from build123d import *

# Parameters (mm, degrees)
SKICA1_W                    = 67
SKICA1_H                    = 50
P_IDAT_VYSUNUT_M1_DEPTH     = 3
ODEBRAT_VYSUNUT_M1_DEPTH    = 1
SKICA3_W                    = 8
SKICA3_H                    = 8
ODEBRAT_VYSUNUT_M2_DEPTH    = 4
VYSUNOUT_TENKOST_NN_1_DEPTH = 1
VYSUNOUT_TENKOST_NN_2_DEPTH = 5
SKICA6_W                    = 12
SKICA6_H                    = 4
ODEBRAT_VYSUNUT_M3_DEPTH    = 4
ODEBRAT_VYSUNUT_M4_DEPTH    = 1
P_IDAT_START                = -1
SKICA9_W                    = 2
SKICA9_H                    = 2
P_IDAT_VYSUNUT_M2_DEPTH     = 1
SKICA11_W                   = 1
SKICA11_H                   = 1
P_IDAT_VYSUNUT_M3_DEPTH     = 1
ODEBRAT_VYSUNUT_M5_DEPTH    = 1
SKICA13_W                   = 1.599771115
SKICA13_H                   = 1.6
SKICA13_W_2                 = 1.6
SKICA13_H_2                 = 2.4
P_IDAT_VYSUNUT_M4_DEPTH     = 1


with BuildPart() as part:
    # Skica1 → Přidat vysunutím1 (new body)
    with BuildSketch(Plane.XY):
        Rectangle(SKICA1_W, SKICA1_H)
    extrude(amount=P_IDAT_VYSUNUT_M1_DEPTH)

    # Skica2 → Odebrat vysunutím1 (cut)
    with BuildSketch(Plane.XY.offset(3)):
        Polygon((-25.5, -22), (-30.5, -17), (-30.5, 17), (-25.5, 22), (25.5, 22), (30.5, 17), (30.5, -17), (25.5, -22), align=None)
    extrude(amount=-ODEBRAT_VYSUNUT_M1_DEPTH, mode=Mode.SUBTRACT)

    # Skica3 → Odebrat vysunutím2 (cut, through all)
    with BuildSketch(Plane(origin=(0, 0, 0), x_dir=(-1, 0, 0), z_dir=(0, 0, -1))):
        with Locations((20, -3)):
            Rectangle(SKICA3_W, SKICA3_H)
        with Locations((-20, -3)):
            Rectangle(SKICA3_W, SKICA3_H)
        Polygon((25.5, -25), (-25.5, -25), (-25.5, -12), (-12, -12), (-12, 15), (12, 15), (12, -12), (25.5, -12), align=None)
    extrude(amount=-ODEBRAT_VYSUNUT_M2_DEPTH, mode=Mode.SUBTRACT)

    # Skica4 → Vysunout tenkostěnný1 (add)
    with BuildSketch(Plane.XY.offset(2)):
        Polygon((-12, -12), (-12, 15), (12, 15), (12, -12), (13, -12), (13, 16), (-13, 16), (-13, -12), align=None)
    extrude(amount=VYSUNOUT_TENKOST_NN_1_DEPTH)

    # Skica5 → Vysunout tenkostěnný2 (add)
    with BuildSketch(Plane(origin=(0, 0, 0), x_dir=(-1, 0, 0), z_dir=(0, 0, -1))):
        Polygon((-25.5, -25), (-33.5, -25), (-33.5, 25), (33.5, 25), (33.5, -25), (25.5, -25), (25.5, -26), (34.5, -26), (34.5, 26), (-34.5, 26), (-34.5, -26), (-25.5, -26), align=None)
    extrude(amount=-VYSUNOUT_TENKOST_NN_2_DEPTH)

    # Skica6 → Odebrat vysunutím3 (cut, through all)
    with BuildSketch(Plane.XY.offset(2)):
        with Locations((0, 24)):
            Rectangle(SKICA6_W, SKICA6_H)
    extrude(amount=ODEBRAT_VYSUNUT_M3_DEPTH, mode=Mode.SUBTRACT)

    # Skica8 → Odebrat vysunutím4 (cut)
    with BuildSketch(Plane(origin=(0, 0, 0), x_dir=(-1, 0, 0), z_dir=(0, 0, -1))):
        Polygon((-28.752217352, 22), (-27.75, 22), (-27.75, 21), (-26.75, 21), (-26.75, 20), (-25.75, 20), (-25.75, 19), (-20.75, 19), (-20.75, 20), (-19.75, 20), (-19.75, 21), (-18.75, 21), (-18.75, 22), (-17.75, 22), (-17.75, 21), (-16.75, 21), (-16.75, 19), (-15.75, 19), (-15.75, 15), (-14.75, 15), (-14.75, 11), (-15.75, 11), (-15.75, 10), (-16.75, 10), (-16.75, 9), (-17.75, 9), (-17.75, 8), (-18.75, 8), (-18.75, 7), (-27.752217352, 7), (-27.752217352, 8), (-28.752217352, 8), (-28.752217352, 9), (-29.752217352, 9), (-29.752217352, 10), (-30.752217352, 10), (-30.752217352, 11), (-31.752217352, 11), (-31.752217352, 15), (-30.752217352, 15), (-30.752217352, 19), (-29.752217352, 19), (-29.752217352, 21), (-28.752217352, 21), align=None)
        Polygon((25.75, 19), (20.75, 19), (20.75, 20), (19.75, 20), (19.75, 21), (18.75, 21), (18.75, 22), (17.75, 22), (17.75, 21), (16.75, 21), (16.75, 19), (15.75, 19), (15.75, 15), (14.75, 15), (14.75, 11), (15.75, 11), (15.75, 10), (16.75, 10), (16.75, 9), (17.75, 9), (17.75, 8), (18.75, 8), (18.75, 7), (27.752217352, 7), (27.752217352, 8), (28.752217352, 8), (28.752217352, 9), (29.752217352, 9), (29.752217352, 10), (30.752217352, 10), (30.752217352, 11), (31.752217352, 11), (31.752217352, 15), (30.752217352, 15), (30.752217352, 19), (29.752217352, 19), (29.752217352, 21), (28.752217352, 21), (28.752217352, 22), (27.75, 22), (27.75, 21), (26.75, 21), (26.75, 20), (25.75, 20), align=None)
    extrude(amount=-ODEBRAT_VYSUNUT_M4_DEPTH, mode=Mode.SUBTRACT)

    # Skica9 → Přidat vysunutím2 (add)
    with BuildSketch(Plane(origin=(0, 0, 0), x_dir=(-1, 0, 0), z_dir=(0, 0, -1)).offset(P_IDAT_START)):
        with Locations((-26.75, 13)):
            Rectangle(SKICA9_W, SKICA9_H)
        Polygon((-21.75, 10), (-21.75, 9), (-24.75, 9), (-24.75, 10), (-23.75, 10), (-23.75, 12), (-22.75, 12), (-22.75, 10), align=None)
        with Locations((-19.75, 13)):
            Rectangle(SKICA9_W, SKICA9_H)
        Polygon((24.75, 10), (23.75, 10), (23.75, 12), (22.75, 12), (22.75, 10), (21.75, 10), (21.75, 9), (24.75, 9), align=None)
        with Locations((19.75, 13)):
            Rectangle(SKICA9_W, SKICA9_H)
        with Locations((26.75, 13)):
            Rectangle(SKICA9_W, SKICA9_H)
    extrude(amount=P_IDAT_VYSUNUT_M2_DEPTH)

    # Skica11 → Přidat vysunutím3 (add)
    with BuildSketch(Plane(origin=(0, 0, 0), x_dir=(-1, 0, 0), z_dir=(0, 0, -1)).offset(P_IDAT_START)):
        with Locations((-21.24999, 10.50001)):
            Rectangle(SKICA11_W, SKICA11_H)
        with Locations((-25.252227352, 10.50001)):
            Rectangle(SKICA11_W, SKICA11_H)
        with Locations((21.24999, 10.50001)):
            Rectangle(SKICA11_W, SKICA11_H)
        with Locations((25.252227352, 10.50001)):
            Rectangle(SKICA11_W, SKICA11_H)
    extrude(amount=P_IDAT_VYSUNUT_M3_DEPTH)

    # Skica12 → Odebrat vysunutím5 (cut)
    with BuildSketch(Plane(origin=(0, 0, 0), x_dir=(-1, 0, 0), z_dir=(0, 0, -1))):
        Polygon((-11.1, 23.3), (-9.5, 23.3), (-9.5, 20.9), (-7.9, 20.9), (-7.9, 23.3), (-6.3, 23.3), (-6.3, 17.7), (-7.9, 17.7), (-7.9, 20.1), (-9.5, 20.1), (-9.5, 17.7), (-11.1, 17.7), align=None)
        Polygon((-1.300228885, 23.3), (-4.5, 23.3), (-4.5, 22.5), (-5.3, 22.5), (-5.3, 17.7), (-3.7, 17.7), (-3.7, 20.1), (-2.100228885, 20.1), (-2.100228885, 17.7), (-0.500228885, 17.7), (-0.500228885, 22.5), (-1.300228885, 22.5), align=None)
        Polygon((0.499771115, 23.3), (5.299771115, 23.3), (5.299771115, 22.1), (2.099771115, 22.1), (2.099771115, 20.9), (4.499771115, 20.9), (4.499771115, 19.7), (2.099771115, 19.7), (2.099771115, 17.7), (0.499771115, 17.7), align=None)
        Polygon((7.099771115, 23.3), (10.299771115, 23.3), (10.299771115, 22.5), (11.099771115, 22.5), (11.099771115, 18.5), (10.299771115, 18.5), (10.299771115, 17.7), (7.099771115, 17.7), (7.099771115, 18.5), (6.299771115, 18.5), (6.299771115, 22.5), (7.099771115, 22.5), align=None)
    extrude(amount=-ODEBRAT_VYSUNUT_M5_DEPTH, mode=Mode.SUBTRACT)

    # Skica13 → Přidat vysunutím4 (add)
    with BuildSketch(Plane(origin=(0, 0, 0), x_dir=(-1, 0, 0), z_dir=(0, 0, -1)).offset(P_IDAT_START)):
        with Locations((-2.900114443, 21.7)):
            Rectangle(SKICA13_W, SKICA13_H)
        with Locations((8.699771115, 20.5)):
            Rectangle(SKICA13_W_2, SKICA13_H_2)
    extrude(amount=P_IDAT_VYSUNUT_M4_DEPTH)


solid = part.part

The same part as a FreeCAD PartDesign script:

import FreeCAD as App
import Part
import Sketcher
Q = App.Units.Quantity


def add_polygon(sketch, points):
    """Adds a closed chain of lines whose ends are joined by coincident constraints."""
    first, n = sketch.GeometryCount, len(points)
    for a, b in zip(points, points[1:] + points[:1]):
        sketch.addGeometry(Part.LineSegment(App.Vector(*a, 0), App.Vector(*b, 0)), False)
    for i in range(n):
        sketch.addConstraint(Sketcher.Constraint("Coincident", first + i, 2, first + (i + 1) % n, 1))

doc = App.newDocument("Part")
body = doc.addObject("PartDesign::Body", "Body")

# Sketch on XY plane
sketch1 = doc.addObject("Sketcher::SketchObject", "Sketch")
body.addObject(sketch1)
sketch1.AttachmentSupport = (doc.XY_Plane, [""])
sketch1.MapMode = "FlatFace"
add_polygon(sketch1, [(-33.5, 25), (-33.5, -25), (33.5, -25), (33.5, 25)])  # lines 0-3
sketch1.addConstraint(Sketcher.Constraint("Vertical", 0))
sketch1.addConstraint(Sketcher.Constraint("Horizontal", 1))
sketch1.addConstraint(Sketcher.Constraint("Vertical", 2))
sketch1.addConstraint(Sketcher.Constraint("Horizontal", 3))
sketch1.addConstraint(Sketcher.Constraint("Symmetric", 0, 2, 2, 2, -1, 1))
sketch1.addConstraint(Sketcher.Constraint("DistanceX", 1, 1, 1, 2, Q("67 mm")))
sketch1.addConstraint(Sketcher.Constraint("DistanceY", 0, 2, 0, 1, Q("50 mm")))
pad1 = doc.addObject("PartDesign::Pad", "Pad")
body.addObject(pad1)
pad1.Profile = sketch1
pad1.Length = 3

# Sketch on XY plane
sketch2 = doc.addObject("Sketcher::SketchObject", "Sketch001")
body.addObject(sketch2)
sketch2.AttachmentSupport = (doc.XY_Plane, [""])
sketch2.MapMode = "FlatFace"
sketch2.AttachmentOffset = App.Placement(App.Vector(0, 0, 3), App.Rotation())
add_polygon(sketch2, [(-30.5, -17), (-25.5, -22), (25.5, -22), (30.5, -17), (30.5, 17), (25.5, 22), (-25.5, 22), (-30.5, 17)])  # lines 0-7
sketch2.addConstraint(Sketcher.Constraint("Horizontal", 1))
sketch2.addConstraint(Sketcher.Constraint("Vertical", 3))
sketch2.addConstraint(Sketcher.Constraint("Horizontal", 5))
sketch2.addConstraint(Sketcher.Constraint("Vertical", 7))
sketch2.addConstraint(Sketcher.Constraint("Symmetric", 0, 2, 4, 2, -1, 1))
sketch2.addConstraint(Sketcher.Constraint("Symmetric", 2, 2, 6, 2, -1, 1))
sketch2.addConstraint(Sketcher.Constraint("Perpendicular", 0, 2))
sketch2.addConstraint(Sketcher.Constraint("Perpendicular", 2, 4))
sketch2.addConstraint(Sketcher.Constraint("Perpendicular", 4, 6))
sketch2.addConstraint(Sketcher.Constraint("Horizontal", 3, 2, 6, 2))
sketch2.addConstraint(Sketcher.Constraint("Vertical", 1, 2, 4, 2))
sketch2.addConstraint(Sketcher.Constraint("DistanceX", 1, 1, 1, 2, Q("51 mm")))
sketch2.addConstraint(Sketcher.Constraint("DistanceY", 3, 1, 3, 2, Q("34 mm")))
sketch2.addConstraint(Sketcher.Constraint("DistanceY", 0, 2, -1, 1, Q("22 mm")))
pocket1 = doc.addObject("PartDesign::Pocket", "Pocket")
body.addObject(pocket1)
pocket1.Profile = sketch2
pocket1.Length = 1

# Sketch on XY plane
sketch3 = doc.addObject("Sketcher::SketchObject", "Sketch002")
body.addObject(sketch3)
sketch3.AttachmentSupport = (doc.XY_Plane, [""])
sketch3.MapMode = "FlatFace"
add_polygon(sketch3, [(-16, 1), (-16, -7), (-24, -7), (-24, 1)])  # lines 0-3
add_polygon(sketch3, [(24, 1), (24, -7), (16, -7), (16, 1)])  # lines 4-7
add_polygon(sketch3, [(25.5, -25), (-25.5, -25), (-25.5, -12), (-12, -12), (-12, 15), (12, 15), (12, -12), (25.5, -12)])  # lines 8-15
sketch3.addConstraint(Sketcher.Constraint("Vertical", 0))
sketch3.addConstraint(Sketcher.Constraint("Horizontal", 1))
sketch3.addConstraint(Sketcher.Constraint("Vertical", 2))
sketch3.addConstraint(Sketcher.Constraint("Horizontal", 3))
sketch3.addConstraint(Sketcher.Constraint("Vertical", 4))
sketch3.addConstraint(Sketcher.Constraint("Horizontal", 5))
sketch3.addConstraint(Sketcher.Constraint("Vertical", 6))
sketch3.addConstraint(Sketcher.Constraint("Horizontal", 7))
sketch3.addConstraint(Sketcher.Constraint("Horizontal", 8))
sketch3.addConstraint(Sketcher.Constraint("Vertical", 9))
sketch3.addConstraint(Sketcher.Constraint("Horizontal", 10))
sketch3.addConstraint(Sketcher.Constraint("Vertical", 11))
sketch3.addConstraint(Sketcher.Constraint("Horizontal", 12))
sketch3.addConstraint(Sketcher.Constraint("Vertical", 13))
sketch3.addConstraint(Sketcher.Constraint("Horizontal", 14))
sketch3.addConstraint(Sketcher.Constraint("Vertical", 15))
sketch3.addConstraint(Sketcher.Constraint("Symmetric", 1, 2, 4, 2, -2))
sketch3.addConstraint(Sketcher.Constraint("Symmetric", 3, 2, 6, 2, -2))
sketch3.addConstraint(Sketcher.Constraint("Symmetric", 10, 2, 13, 2, -2))
sketch3.addConstraint(Sketcher.Constraint("Equal", 10, 14))
sketch3.addConstraint(Sketcher.Constraint("Equal", 7, 0))
sketch3.addConstraint(Sketcher.Constraint("DistanceX", 1, 2, 1, 1, Q("8 mm")))
sketch3.addConstraint(Sketcher.Constraint("DistanceX", 8, 2, 8, 1, Q("51 mm")))
sketch3.addConstraint(Sketcher.Constraint("DistanceX", 12, 1, 12, 2, Q("24 mm")))
sketch3.addConstraint(Sketcher.Constraint("DistanceY", 9, 1, 9, 2, Q("13 mm")))
sketch3.addConstraint(Sketcher.Constraint("DistanceY", 11, 1, 11, 2, Q("27 mm")))
sketch3.addConstraint(Sketcher.Constraint("DistanceX", 0, 2, -1, 1, Q("16 mm")))
sketch3.addConstraint(Sketcher.Constraint("DistanceY", 0, 2, -1, 1, Q("7 mm")))
sketch3.addConstraint(Sketcher.Constraint("DistanceY", 8, 2, -1, 1, Q("25 mm")))
pocket2 = doc.addObject("PartDesign::Pocket", "Pocket001")
body.addObject(pocket2)
pocket2.Profile = sketch3
pocket2.Type = "ThroughAll"
pocket2.Reversed = True

# Sketch on XY plane
sketch4 = doc.addObject("Sketcher::SketchObject", "Sketch003")
body.addObject(sketch4)
sketch4.AttachmentSupport = (doc.XY_Plane, [""])
sketch4.MapMode = "FlatFace"
sketch4.AttachmentOffset = App.Placement(App.Vector(0, 0, 2), App.Rotation())
add_polygon(sketch4, [(-12, -12), (-12, 15), (12, 15), (12, -12), (13, -12), (13, 16), (-13, 16), (-13, -12)])  # lines 0-7
sketch4.addConstraint(Sketcher.Constraint("Vertical", 0))
sketch4.addConstraint(Sketcher.Constraint("Horizontal", 1))
sketch4.addConstraint(Sketcher.Constraint("Vertical", 2))
sketch4.addConstraint(Sketcher.Constraint("Horizontal", 3))
sketch4.addConstraint(Sketcher.Constraint("Vertical", 4))
sketch4.addConstraint(Sketcher.Constraint("Horizontal", 5))
sketch4.addConstraint(Sketcher.Constraint("Vertical", 6))
sketch4.addConstraint(Sketcher.Constraint("Horizontal", 7))
sketch4.addConstraint(Sketcher.Constraint("Symmetric", 3, 2, 6, 2, -2))
sketch4.addConstraint(Sketcher.Constraint("Equal", 3, 7))
sketch4.addConstraint(Sketcher.Constraint("DistanceX", 1, 1, 1, 2, Q("24 mm")))
sketch4.addConstraint(Sketcher.Constraint("DistanceX", 3, 1, 3, 2, Q("1 mm")))
sketch4.addConstraint(Sketcher.Constraint("DistanceY", 0, 1, 0, 2, Q("27 mm")))
sketch4.addConstraint(Sketcher.Constraint("DistanceY", 4, 1, 4, 2, Q("28 mm")))
sketch4.addConstraint(Sketcher.Constraint("DistanceY", -1, 1, 0, 2, Q("15 mm")))
pad2 = doc.addObject("PartDesign::Pad", "Pad001")
body.addObject(pad2)
pad2.Profile = sketch4
pad2.Length = 1

# Sketch on XY plane
sketch5 = doc.addObject("Sketcher::SketchObject", "Sketch004")
body.addObject(sketch5)
sketch5.AttachmentSupport = (doc.XY_Plane, [""])
sketch5.MapMode = "FlatFace"
add_polygon(sketch5, [(25.5, -25), (33.5, -25), (33.5, 25), (-33.5, 25), (-33.5, -25), (-25.5, -25), (-25.5, -26), (-34.5, -26), (-34.5, 26), (34.5, 26), (34.5, -26), (25.5, -26)])  # lines 0-11
sketch5.addConstraint(Sketcher.Constraint("Horizontal", 0))
sketch5.addConstraint(Sketcher.Constraint("Vertical", 1))
sketch5.addConstraint(Sketcher.Constraint("Horizontal", 2))
sketch5.addConstraint(Sketcher.Constraint("Vertical", 3))
sketch5.addConstraint(Sketcher.Constraint("Horizontal", 4))
sketch5.addConstraint(Sketcher.Constraint("Vertical", 5))
sketch5.addConstraint(Sketcher.Constraint("Horizontal", 6))
sketch5.addConstraint(Sketcher.Constraint("Vertical", 7))
sketch5.addConstraint(Sketcher.Constraint("Horizontal", 8))
sketch5.addConstraint(Sketcher.Constraint("Vertical", 9))
sketch5.addConstraint(Sketcher.Constraint("Horizontal", 10))
sketch5.addConstraint(Sketcher.Constraint("Vertical", 11))
sketch5.addConstraint(Sketcher.Constraint("Symmetric", 0, 2, 2, 2, -1, 1))
sketch5.addConstraint(Sketcher.Constraint("Symmetric", 6, 2, 8, 2, -1, 1))
sketch5.addConstraint(Sketcher.Constraint("Symmetric", 5, 2, 10, 2, -2))
sketch5.addConstraint(Sketcher.Constraint("Horizontal", 0, 2, 3, 2))
sketch5.addConstraint(Sketcher.Constraint("DistanceX", 0, 1, 0, 2, Q("8 mm")))
sketch5.addConstraint(Sketcher.Constraint("DistanceX", 2, 2, 2, 1, Q("67 mm")))
sketch5.addConstraint(Sketcher.Constraint("DistanceX", 6, 2, 6, 1, Q("9 mm")))
sketch5.addConstraint(Sketcher.Constraint("DistanceY", 1, 1, 1, 2, Q("50 mm")))
sketch5.addConstraint(Sketcher.Constraint("DistanceY", 5, 2, 5, 1, Q("1 mm")))
pad3 = doc.addObject("PartDesign::Pad", "Pad002")
body.addObject(pad3)
pad3.Profile = sketch5
pad3.Length = 5

# Sketch on XY plane
sketch6 = doc.addObject("Sketcher::SketchObject", "Sketch005")
body.addObject(sketch6)
sketch6.AttachmentSupport = (doc.XY_Plane, [""])
sketch6.MapMode = "FlatFace"
sketch6.AttachmentOffset = App.Placement(App.Vector(0, 0, 2), App.Rotation())
add_polygon(sketch6, [(-6, 26), (-6, 22), (6, 22), (6, 26)])  # lines 0-3
sketch6.addConstraint(Sketcher.Constraint("Vertical", 0))
sketch6.addConstraint(Sketcher.Constraint("Horizontal", 1))
sketch6.addConstraint(Sketcher.Constraint("Vertical", 2))
sketch6.addConstraint(Sketcher.Constraint("Horizontal", 3))
sketch6.addConstraint(Sketcher.Constraint("DistanceX", 1, 1, 1, 2, Q("12 mm")))
sketch6.addConstraint(Sketcher.Constraint("DistanceY", 0, 2, 0, 1, Q("4 mm")))
sketch6.addConstraint(Sketcher.Constraint("DistanceX", 0, 2, -1, 1, Q("6 mm")))
sketch6.addConstraint(Sketcher.Constraint("DistanceY", -1, 1, 0, 2, Q("22 mm")))
pocket3 = doc.addObject("PartDesign::Pocket", "Pocket002")
body.addObject(pocket3)
pocket3.Profile = sketch6
pocket3.Type = "ThroughAll"
pocket3.Reversed = True

# Sketch on XY plane
sketch7 = doc.addObject("Sketcher::SketchObject", "Sketch006")
body.addObject(sketch7)
sketch7.AttachmentSupport = (doc.XY_Plane, [""])
sketch7.MapMode = "FlatFace"
add_polygon(sketch7, [(27.75, 22), (28.752217, 22), (28.752217, 21), (29.752217, 21), (29.752217, 19), (30.752217, 19), (30.752217, 15), (31.752217, 15), (31.752217, 11), (30.752217, 11), (30.752217, 10), (29.752217, 10), (29.752217, 9), (28.752217, 9), (28.752217, 8), (27.752217, 8), (27.752217, 7), (18.75, 7), (18.75, 8), (17.75, 8), (17.75, 9), (16.75, 9), (16.75, 10), (15.75, 10), (15.75, 11), (14.75, 11), (14.75, 15), (15.75, 15), (15.75, 19), (16.75, 19), (16.75, 21), (17.75, 21), (17.75, 22), (18.75, 22), (18.75, 21), (19.75, 21), (19.75, 20), (20.75, 20), (20.75, 19), (25.75, 19), (25.75, 20), (26.75, 20), (26.75, 21), (27.75, 21)])  # lines 0-43
add_polygon(sketch7, [(-25.75, 19), (-20.75, 19), (-20.75, 20), (-19.75, 20), (-19.75, 21), (-18.75, 21), (-18.75, 22), (-17.75, 22), (-17.75, 21), (-16.75, 21), (-16.75, 19), (-15.75, 19), (-15.75, 15), (-14.75, 15), (-14.75, 11), (-15.75, 11), (-15.75, 10), (-16.75, 10), (-16.75, 9), (-17.75, 9), (-17.75, 8), (-18.75, 8), (-18.75, 7), (-27.752217, 7), (-27.752217, 8), (-28.752217, 8), (-28.752217, 9), (-29.752217, 9), (-29.752217, 10), (-30.752217, 10), (-30.752217, 11), (-31.752217, 11), (-31.752217, 15), (-30.752217, 15), (-30.752217, 19), (-29.752217, 19), (-29.752217, 21), (-28.752217, 21), (-28.752217, 22), (-27.75, 22), (-27.75, 21), (-26.75, 21), (-26.75, 20), (-25.75, 20)])  # lines 44-87
sketch7.addConstraint(Sketcher.Constraint("Horizontal", 0))
sketch7.addConstraint(Sketcher.Constraint("Vertical", 1))
sketch7.addConstraint(Sketcher.Constraint("Horizontal", 2))
sketch7.addConstraint(Sketcher.Constraint("Vertical", 3))
sketch7.addConstraint(Sketcher.Constraint("Horizontal", 4))
sketch7.addConstraint(Sketcher.Constraint("Vertical", 5))
sketch7.addConstraint(Sketcher.Constraint("Horizontal", 6))
sketch7.addConstraint(Sketcher.Constraint("Vertical", 7))
sketch7.addConstraint(Sketcher.Constraint("Horizontal", 8))
sketch7.addConstraint(Sketcher.Constraint("Vertical", 9))
sketch7.addConstraint(Sketcher.Constraint("Horizontal", 10))
sketch7.addConstraint(Sketcher.Constraint("Vertical", 11))
sketch7.addConstraint(Sketcher.Constraint("Horizontal", 12))
sketch7.addConstraint(Sketcher.Constraint("Vertical", 13))
sketch7.addConstraint(Sketcher.Constraint("Horizontal", 14))
sketch7.addConstraint(Sketcher.Constraint("Vertical", 15))
sketch7.addConstraint(Sketcher.Constraint("Horizontal", 16))
sketch7.addConstraint(Sketcher.Constraint("Vertical", 17))
sketch7.addConstraint(Sketcher.Constraint("Horizontal", 18))
sketch7.addConstraint(Sketcher.Constraint("Vertical", 19))
sketch7.addConstraint(Sketcher.Constraint("Horizontal", 20))
sketch7.addConstraint(Sketcher.Constraint("Vertical", 21))
sketch7.addConstraint(Sketcher.Constraint("Horizontal", 22))
sketch7.addConstraint(Sketcher.Constraint("Vertical", 23))
sketch7.addConstraint(Sketcher.Constraint("Horizontal", 24))
sketch7.addConstraint(Sketcher.Constraint("Vertical", 25))
sketch7.addConstraint(Sketcher.Constraint("Horizontal", 26))
sketch7.addConstraint(Sketcher.Constraint("Vertical", 27))
sketch7.addConstraint(Sketcher.Constraint("Horizontal", 28))
sketch7.addConstraint(Sketcher.Constraint("Vertical", 29))
sketch7.addConstraint(Sketcher.Constraint("Horizontal", 30))
sketch7.addConstraint(Sketcher.Constraint("Vertical", 31))
sketch7.addConstraint(Sketcher.Constraint("Horizontal", 32))
sketch7.addConstraint(Sketcher.Constraint("Vertical", 33))
sketch7.addConstraint(Sketcher.Constraint("Horizontal", 34))
sketch7.addConstraint(Sketcher.Constraint("Vertical", 35))
sketch7.addConstraint(Sketcher.Constraint("Horizontal", 36))
sketch7.addConstraint(Sketcher.Constraint("Vertical", 37))
sketch7.addConstraint(Sketcher.Constraint("Horizontal", 38))
sketch7.addConstraint(Sketcher.Constraint("Vertical", 39))
sketch7.addConstraint(Sketcher.Constraint("Horizontal", 40))
sketch7.addConstraint(Sketcher.Constraint("Vertical", 41))
sketch7.addConstraint(Sketcher.Constraint("Horizontal", 42))
sketch7.addConstraint(Sketcher.Constraint("Vertical", 43))
sketch7.addConstraint(Sketcher.Constraint("Horizontal", 44))
sketch7.addConstraint(Sketcher.Constraint("Vertical", 45))
sketch7.addConstraint(Sketcher.Constraint("Horizontal", 46))
sketch7.addConstraint(Sketcher.Constraint("Vertical", 47))
sketch7.addConstraint(Sketcher.Constraint("Horizontal", 48))
sketch7.addConstraint(Sketcher.Constraint("Vertical", 49))
sketch7.addConstraint(Sketcher.Constraint("Horizontal", 50))
sketch7.addConstraint(Sketcher.Constraint("Vertical", 51))
sketch7.addConstraint(Sketcher.Constraint("Horizontal", 52))
sketch7.addConstraint(Sketcher.Constraint("Vertical", 53))
sketch7.addConstraint(Sketcher.Constraint("Horizontal", 54))
sketch7.addConstraint(Sketcher.Constraint("Vertical", 55))
sketch7.addConstraint(Sketcher.Constraint("Horizontal", 56))
sketch7.addConstraint(Sketcher.Constraint("Vertical", 57))
sketch7.addConstraint(Sketcher.Constraint("Horizontal", 58))
sketch7.addConstraint(Sketcher.Constraint("Vertical", 59))
sketch7.addConstraint(Sketcher.Constraint("Horizontal", 60))
sketch7.addConstraint(Sketcher.Constraint("Vertical", 61))
sketch7.addConstraint(Sketcher.Constraint("Horizontal", 62))
sketch7.addConstraint(Sketcher.Constraint("Vertical", 63))
sketch7.addConstraint(Sketcher.Constraint("Horizontal", 64))
sketch7.addConstraint(Sketcher.Constraint("Vertical", 65))
sketch7.addConstraint(Sketcher.Constraint("Horizontal", 66))
sketch7.addConstraint(Sketcher.Constraint("Vertical", 67))
sketch7.addConstraint(Sketcher.Constraint("Horizontal", 68))
sketch7.addConstraint(Sketcher.Constraint("Vertical", 69))
sketch7.addConstraint(Sketcher.Constraint("Horizontal", 70))
sketch7.addConstraint(Sketcher.Constraint("Vertical", 71))
sketch7.addConstraint(Sketcher.Constraint("Horizontal", 72))
sketch7.addConstraint(Sketcher.Constraint("Vertical", 73))
sketch7.addConstraint(Sketcher.Constraint("Horizontal", 74))
sketch7.addConstraint(Sketcher.Constraint("Vertical", 75))
sketch7.addConstraint(Sketcher.Constraint("Horizontal", 76))
sketch7.addConstraint(Sketcher.Constraint("Vertical", 77))
sketch7.addConstraint(Sketcher.Constraint("Horizontal", 78))
sketch7.addConstraint(Sketcher.Constraint("Vertical", 79))
sketch7.addConstraint(Sketcher.Constraint("Horizontal", 80))
sketch7.addConstraint(Sketcher.Constraint("Vertical", 81))
sketch7.addConstraint(Sketcher.Constraint("Horizontal", 82))
sketch7.addConstraint(Sketcher.Constraint("Vertical", 83))
sketch7.addConstraint(Sketcher.Constraint("Horizontal", 84))
sketch7.addConstraint(Sketcher.Constraint("Vertical", 85))
sketch7.addConstraint(Sketcher.Constraint("Horizontal", 86))
sketch7.addConstraint(Sketcher.Constraint("Vertical", 87))
sketch7.addConstraint(Sketcher.Constraint("Symmetric", 37, 2, 44, 2, -2))
sketch7.addConstraint(Sketcher.Constraint("Symmetric", 35, 2, 46, 2, -2))
sketch7.addConstraint(Sketcher.Constraint("Symmetric", 33, 2, 48, 2, -2))
sketch7.addConstraint(Sketcher.Constraint("Symmetric", 31, 2, 50, 2, -2))
sketch7.addConstraint(Sketcher.Constraint("Symmetric", 29, 2, 52, 2, -2))
sketch7.addConstraint(Sketcher.Constraint("Symmetric", 27, 2, 54, 2, -2))
sketch7.addConstraint(Sketcher.Constraint("Symmetric", 25, 2, 56, 2, -2))
sketch7.addConstraint(Sketcher.Constraint("Symmetric", 23, 2, 58, 2, -2))
sketch7.addConstraint(Sketcher.Constraint("Symmetric", 21, 2, 60, 2, -2))
sketch7.addConstraint(Sketcher.Constraint("Symmetric", 19, 2, 62, 2, -2))
sketch7.addConstraint(Sketcher.Constraint("Symmetric", 17, 2, 64, 2, -2))
sketch7.addConstraint(Sketcher.Constraint("Symmetric", 15, 2, 66, 2, -2))
sketch7.addConstraint(Sketcher.Constraint("Symmetric", 13, 2, 68, 2, -2))
sketch7.addConstraint(Sketcher.Constraint("Symmetric", 11, 2, 70, 2, -2))
sketch7.addConstraint(Sketcher.Constraint("Symmetric", 9, 2, 72, 2, -2))
sketch7.addConstraint(Sketcher.Constraint("Symmetric", 7, 2, 74, 2, -2))
sketch7.addConstraint(Sketcher.Constraint("Symmetric", 5, 2, 76, 2, -2))
sketch7.addConstraint(Sketcher.Constraint("Symmetric", 3, 2, 78, 2, -2))
sketch7.addConstraint(Sketcher.Constraint("Symmetric", 1, 2, 80, 2, -2))
sketch7.addConstraint(Sketcher.Constraint("Symmetric", 43, 2, 82, 2, -2))
sketch7.addConstraint(Sketcher.Constraint("Symmetric", 41, 2, 84, 2, -2))
sketch7.addConstraint(Sketcher.Constraint("Symmetric", 39, 2, 86, 2, -2))
sketch7.addConstraint(Sketcher.Constraint("Horizontal", 14, 2, 17, 2))
sketch7.addConstraint(Sketcher.Constraint("Horizontal", 12, 2, 19, 2))
sketch7.addConstraint(Sketcher.Constraint("Horizontal", 10, 2, 21, 2))
sketch7.addConstraint(Sketcher.Constraint("Horizontal", 8, 2, 23, 2))
sketch7.addConstraint(Sketcher.Constraint("Horizontal", 6, 2, 25, 2))
sketch7.addConstraint(Sketcher.Constraint("Horizontal", 4, 2, 27, 2))
sketch7.addConstraint(Sketcher.Constraint("Horizontal", 2, 2, 29, 2))
sketch7.addConstraint(Sketcher.Constraint("Horizontal", 0, 2, 31, 2))
sketch7.addConstraint(Sketcher.Constraint("Horizontal", 30, 2, 33, 2))
sketch7.addConstraint(Sketcher.Constraint("Horizontal", 28, 2, 37, 2))
sketch7.addConstraint(Sketcher.Constraint("Horizontal", 36, 2, 39, 2))
sketch7.addConstraint(Sketcher.Constraint("Horizontal", 34, 2, 41, 2))
sketch7.addConstraint(Sketcher.Constraint("Vertical", 5, 2, 8, 2))
sketch7.addConstraint(Sketcher.Constraint("Vertical", 3, 2, 10, 2))
sketch7.addConstraint(Sketcher.Constraint("Vertical", 1, 2, 12, 2))
sketch7.addConstraint(Sketcher.Constraint("Vertical", 23, 2, 26, 2))
sketch7.addConstraint(Sketcher.Constraint("Vertical", 21, 2, 28, 2))
sketch7.addConstraint(Sketcher.Constraint("Vertical", 19, 2, 30, 2))
sketch7.addConstraint(Sketcher.Constraint("Vertical", 17, 2, 32, 2))
sketch7.addConstraint(Sketcher.Constraint("Equal", 2, 4))
sketch7.addConstraint(Sketcher.Constraint("Equal", 4, 6))
sketch7.addConstraint(Sketcher.Constraint("Equal", 12, 14))
sketch7.addConstraint(Sketcher.Constraint("Equal", 14, 18))
sketch7.addConstraint(Sketcher.Constraint("Equal", 18, 20))
sketch7.addConstraint(Sketcher.Constraint("Equal", 20, 22))
sketch7.addConstraint(Sketcher.Constraint("Equal", 22, 24))
sketch7.addConstraint(Sketcher.Constraint("Equal", 32, 34))
sketch7.addConstraint(Sketcher.Constraint("Equal", 34, 36))
sketch7.addConstraint(Sketcher.Constraint("Equal", 36, 40))
sketch7.addConstraint(Sketcher.Constraint("Equal", 40, 42))
sketch7.addConstraint(Sketcher.Constraint("Equal", 86, 1))
sketch7.addConstraint(Sketcher.Constraint("Equal", 5, 7))
sketch7.addConstraint(Sketcher.Constraint("Equal", 1, 9))
sketch7.addConstraint(Sketcher.Constraint("Equal", 9, 11))
sketch7.addConstraint(Sketcher.Constraint("Equal", 11, 13))
sketch7.addConstraint(Sketcher.Constraint("Equal", 13, 15))
sketch7.addConstraint(Sketcher.Constraint("Equal", 33, 35))
sketch7.addConstraint(Sketcher.Constraint("Equal", 35, 37))
sketch7.addConstraint(Sketcher.Constraint("DistanceX", 2, 1, 2, 2, Q("1 mm")))
sketch7.addConstraint(Sketcher.Constraint("DistanceX", 38, 1, 38, 2, Q("5 mm")))
sketch7.addConstraint(Sketcher.Constraint("DistanceY", 5, 2, 5, 1, Q("4 mm")))
sketch7.addConstraint(Sketcher.Constraint("DistanceY", -1, 1, 0, 2, Q("22 mm")))
sketch7.addConstraint(Sketcher.Constraint("DistanceX", -1, 1, 16, 2, Q("18.75 mm")))
sketch7.addConstraint(Sketcher.Constraint("DistanceX", 0, 1, 0, 2, Q("1.002217 mm")))
pocket4 = doc.addObject("PartDesign::Pocket", "Pocket003")
body.addObject(pocket4)
pocket4.Profile = sketch7
pocket4.Length = 1
pocket4.Reversed = True

# Sketch on XY plane
sketch8 = doc.addObject("Sketcher::SketchObject", "Sketch007")
body.addObject(sketch8)
sketch8.AttachmentSupport = (doc.XY_Plane, [""])
sketch8.MapMode = "FlatFace"
sketch8.AttachmentOffset = App.Placement(App.Vector(0, 0, 1), App.Rotation())
add_polygon(sketch8, [(27.75, 14), (27.75, 12), (25.75, 12), (25.75, 14)])  # lines 0-3
add_polygon(sketch8, [(21.75, 9), (21.75, 10), (22.75, 10), (22.75, 12), (23.75, 12), (23.75, 10), (24.75, 10), (24.75, 9)])  # lines 4-11
add_polygon(sketch8, [(20.75, 14), (20.75, 12), (18.75, 12), (18.75, 14)])  # lines 12-15
add_polygon(sketch8, [(-24.75, 10), (-23.75, 10), (-23.75, 12), (-22.75, 12), (-22.75, 10), (-21.75, 10), (-21.75, 9), (-24.75, 9)])  # lines 16-23
add_polygon(sketch8, [(-18.75, 14), (-18.75, 12), (-20.75, 12), (-20.75, 14)])  # lines 24-27
add_polygon(sketch8, [(-25.75, 14), (-25.75, 12), (-27.75, 12), (-27.75, 14)])  # lines 28-31
sketch8.addConstraint(Sketcher.Constraint("Vertical", 0))
sketch8.addConstraint(Sketcher.Constraint("Horizontal", 1))
sketch8.addConstraint(Sketcher.Constraint("Vertical", 2))
sketch8.addConstraint(Sketcher.Constraint("Horizontal", 3))
sketch8.addConstraint(Sketcher.Constraint("Vertical", 4))
sketch8.addConstraint(Sketcher.Constraint("Horizontal", 5))
sketch8.addConstraint(Sketcher.Constraint("Vertical", 6))
sketch8.addConstraint(Sketcher.Constraint("Horizontal", 7))
sketch8.addConstraint(Sketcher.Constraint("Vertical", 8))
sketch8.addConstraint(Sketcher.Constraint("Horizontal", 9))
sketch8.addConstraint(Sketcher.Constraint("Vertical", 10))
sketch8.addConstraint(Sketcher.Constraint("Horizontal", 11))
sketch8.addConstraint(Sketcher.Constraint("Vertical", 12))
sketch8.addConstraint(Sketcher.Constraint("Horizontal", 13))
sketch8.addConstraint(Sketcher.Constraint("Vertical", 14))
sketch8.addConstraint(Sketcher.Constraint("Horizontal", 15))
sketch8.addConstraint(Sketcher.Constraint("Horizontal", 16))
sketch8.addConstraint(Sketcher.Constraint("Vertical", 17))
sketch8.addConstraint(Sketcher.Constraint("Horizontal", 18))
sketch8.addConstraint(Sketcher.Constraint("Vertical", 19))
sketch8.addConstraint(Sketcher.Constraint("Horizontal", 20))
sketch8.addConstraint(Sketcher.Constraint("Vertical", 21))
sketch8.addConstraint(Sketcher.Constraint("Horizontal", 22))
sketch8.addConstraint(Sketcher.Constraint("Vertical", 23))
sketch8.addConstraint(Sketcher.Constraint("Vertical", 24))
sketch8.addConstraint(Sketcher.Constraint("Horizontal", 25))
sketch8.addConstraint(Sketcher.Constraint("Vertical", 26))
sketch8.addConstraint(Sketcher.Constraint("Horizontal", 27))
sketch8.addConstraint(Sketcher.Constraint("Vertical", 28))
sketch8.addConstraint(Sketcher.Constraint("Horizontal", 29))
sketch8.addConstraint(Sketcher.Constraint("Vertical", 30))
sketch8.addConstraint(Sketcher.Constraint("Horizontal", 31))
sketch8.addConstraint(Sketcher.Constraint("Symmetric", 8, 2, 16, 2, -2))
sketch8.addConstraint(Sketcher.Constraint("Symmetric", 6, 2, 18, 2, -2))
sketch8.addConstraint(Sketcher.Constraint("Symmetric", 4, 2, 20, 2, -2))
sketch8.addConstraint(Sketcher.Constraint("Symmetric", 10, 2, 22, 2, -2))
sketch8.addConstraint(Sketcher.Constraint("Symmetric", 13, 2, 24, 2, -2))
sketch8.addConstraint(Sketcher.Constraint("Symmetric", 15, 2, 26, 2, -2))
sketch8.addConstraint(Sketcher.Constraint("Symmetric", 1, 2, 28, 2, -2))
sketch8.addConstraint(Sketcher.Constraint("Symmetric", 3, 2, 30, 2, -2))
sketch8.addConstraint(Sketcher.Constraint("Horizontal", 1, 2, 6, 2))
sketch8.addConstraint(Sketcher.Constraint("Horizontal", 5, 2, 8, 2))
sketch8.addConstraint(Sketcher.Constraint("Horizontal", 7, 2, 12, 2))
sketch8.addConstraint(Sketcher.Constraint("Horizontal", 3, 2, 14, 2))
sketch8.addConstraint(Sketcher.Constraint("Equal", 5, 7))
sketch8.addConstraint(Sketcher.Constraint("Equal", 7, 9))
sketch8.addConstraint(Sketcher.Constraint("Equal", 3, 13))
sketch8.addConstraint(Sketcher.Constraint("Equal", 31, 0))
sketch8.addConstraint(Sketcher.Constraint("Equal", 20, 4))
sketch8.addConstraint(Sketcher.Constraint("Equal", 2, 6))
sketch8.addConstraint(Sketcher.Constraint("DistanceX", 1, 2, 1, 1, Q("2 mm")))
sketch8.addConstraint(Sketcher.Constraint("DistanceX", 5, 1, 5, 2, Q("1 mm")))
sketch8.addConstraint(Sketcher.Constraint("DistanceY", -1, 1, 0, 2, Q("12 mm")))
sketch8.addConstraint(Sketcher.Constraint("DistanceX", 4, 2, 1, 2, Q("4 mm")))
sketch8.addConstraint(Sketcher.Constraint("DistanceX", 12, 2, 6, 2, Q("2 mm")))
sketch8.addConstraint(Sketcher.Constraint("DistanceX", 16, 2, 13, 2, Q("42.5 mm")))
pad4 = doc.addObject("PartDesign::Pad", "Pad003")
body.addObject(pad4)
pad4.Profile = sketch8
pad4.Length = 1
pad4.Reversed = True

# Sketch on XY plane
sketch9 = doc.addObject("Sketcher::SketchObject", "Sketch008")
body.addObject(sketch9)
sketch9.AttachmentSupport = (doc.XY_Plane, [""])
sketch9.MapMode = "FlatFace"
sketch9.AttachmentOffset = App.Placement(App.Vector(0, 0, 1), App.Rotation())
add_polygon(sketch9, [(21.74999, 11.00001), (21.74999, 10.00001), (20.74999, 10.00001), (20.74999, 11.00001)])  # lines 0-3
add_polygon(sketch9, [(25.752227, 11.00001), (25.752227, 10.00001), (24.752227, 10.00001), (24.752227, 11.00001)])  # lines 4-7
add_polygon(sketch9, [(-20.74999, 11.00001), (-20.74999, 10.00001), (-21.74999, 10.00001), (-21.74999, 11.00001)])  # lines 8-11
add_polygon(sketch9, [(-24.752227, 11.00001), (-24.752227, 10.00001), (-25.752227, 10.00001), (-25.752227, 11.00001)])  # lines 12-15
sketch9.addConstraint(Sketcher.Constraint("Vertical", 0))
sketch9.addConstraint(Sketcher.Constraint("Horizontal", 1))
sketch9.addConstraint(Sketcher.Constraint("Vertical", 2))
sketch9.addConstraint(Sketcher.Constraint("Horizontal", 3))
sketch9.addConstraint(Sketcher.Constraint("Vertical", 4))
sketch9.addConstraint(Sketcher.Constraint("Horizontal", 5))
sketch9.addConstraint(Sketcher.Constraint("Vertical", 6))
sketch9.addConstraint(Sketcher.Constraint("Horizontal", 7))
sketch9.addConstraint(Sketcher.Constraint("Vertical", 8))
sketch9.addConstraint(Sketcher.Constraint("Horizontal", 9))
sketch9.addConstraint(Sketcher.Constraint("Vertical", 10))
sketch9.addConstraint(Sketcher.Constraint("Horizontal", 11))
sketch9.addConstraint(Sketcher.Constraint("Vertical", 12))
sketch9.addConstraint(Sketcher.Constraint("Horizontal", 13))
sketch9.addConstraint(Sketcher.Constraint("Vertical", 14))
sketch9.addConstraint(Sketcher.Constraint("Horizontal", 15))
sketch9.addConstraint(Sketcher.Constraint("Symmetric", 1, 2, 8, 2, -2))
sketch9.addConstraint(Sketcher.Constraint("Symmetric", 3, 2, 10, 2, -2))
sketch9.addConstraint(Sketcher.Constraint("Symmetric", 5, 2, 12, 2, -2))
sketch9.addConstraint(Sketcher.Constraint("Symmetric", 7, 2, 14, 2, -2))
sketch9.addConstraint(Sketcher.Constraint("Horizontal", 1, 2, 4, 2))
sketch9.addConstraint(Sketcher.Constraint("Horizontal", 3, 2, 6, 2))
sketch9.addConstraint(Sketcher.Constraint("Equal", 3, 5))
sketch9.addConstraint(Sketcher.Constraint("Equal", 15, 0))
sketch9.addConstraint(Sketcher.Constraint("DistanceX", 1, 2, 1, 1, Q("1 mm")))
sketch9.addConstraint(Sketcher.Constraint("DistanceX", -1, 1, 0, 2, Q("21.74999 mm")))
sketch9.addConstraint(Sketcher.Constraint("DistanceY", -1, 1, 0, 2, Q("10.00001 mm")))
sketch9.addConstraint(Sketcher.Constraint("DistanceX", -1, 1, 4, 2, Q("25.752227 mm")))
pad5 = doc.addObject("PartDesign::Pad", "Pad004")
body.addObject(pad5)
pad5.Profile = sketch9
pad5.Length = 1
pad5.Reversed = True

# Sketch on XY plane
sketch10 = doc.addObject("Sketcher::SketchObject", "Sketch009")
body.addObject(sketch10)
sketch10.AttachmentSupport = (doc.XY_Plane, [""])
sketch10.MapMode = "FlatFace"
add_polygon(sketch10, [(9.5, 23.3), (11.1, 23.3), (11.1, 17.7), (9.5, 17.7), (9.5, 20.1), (7.9, 20.1), (7.9, 17.7), (6.3, 17.7), (6.3, 23.3), (7.9, 23.3), (7.9, 20.9), (9.5, 20.9)])  # lines 0-11
add_polygon(sketch10, [(1.300229, 23.3), (4.5, 23.3), (4.5, 22.5), (5.3, 22.5), (5.3, 17.7), (3.7, 17.7), (3.7, 20.1), (2.100229, 20.1), (2.100229, 17.7), (0.500229, 17.7), (0.500229, 22.5), (1.300229, 22.5)])  # lines 12-23
add_polygon(sketch10, [(-5.299771, 23.3), (-0.499771, 23.3), (-0.499771, 17.7), (-2.099771, 17.7), (-2.099771, 19.7), (-4.499771, 19.7), (-4.499771, 20.9), (-2.099771, 20.9), (-2.099771, 22.1), (-5.299771, 22.1)])  # lines 24-33
add_polygon(sketch10, [(-10.299771, 23.3), (-7.099771, 23.3), (-7.099771, 22.5), (-6.299771, 22.5), (-6.299771, 18.5), (-7.099771, 18.5), (-7.099771, 17.7), (-10.299771, 17.7), (-10.299771, 18.5), (-11.099771, 18.5), (-11.099771, 22.5), (-10.299771, 22.5)])  # lines 34-45
sketch10.addConstraint(Sketcher.Constraint("Horizontal", 0))
sketch10.addConstraint(Sketcher.Constraint("Vertical", 1))
sketch10.addConstraint(Sketcher.Constraint("Horizontal", 2))
sketch10.addConstraint(Sketcher.Constraint("Vertical", 3))
sketch10.addConstraint(Sketcher.Constraint("Horizontal", 4))
sketch10.addConstraint(Sketcher.Constraint("Vertical", 5))
sketch10.addConstraint(Sketcher.Constraint("Horizontal", 6))
sketch10.addConstraint(Sketcher.Constraint("Vertical", 7))
sketch10.addConstraint(Sketcher.Constraint("Horizontal", 8))
sketch10.addConstraint(Sketcher.Constraint("Vertical", 9))
sketch10.addConstraint(Sketcher.Constraint("Horizontal", 10))
sketch10.addConstraint(Sketcher.Constraint("Vertical", 11))
sketch10.addConstraint(Sketcher.Constraint("Horizontal", 12))
sketch10.addConstraint(Sketcher.Constraint("Vertical", 13))
sketch10.addConstraint(Sketcher.Constraint("Horizontal", 14))
sketch10.addConstraint(Sketcher.Constraint("Vertical", 15))
sketch10.addConstraint(Sketcher.Constraint("Horizontal", 16))
sketch10.addConstraint(Sketcher.Constraint("Vertical", 17))
sketch10.addConstraint(Sketcher.Constraint("Horizontal", 18))
sketch10.addConstraint(Sketcher.Constraint("Vertical", 19))
sketch10.addConstraint(Sketcher.Constraint("Horizontal", 20))
sketch10.addConstraint(Sketcher.Constraint("Vertical", 21))
sketch10.addConstraint(Sketcher.Constraint("Horizontal", 22))
sketch10.addConstraint(Sketcher.Constraint("Vertical", 23))
sketch10.addConstraint(Sketcher.Constraint("Horizontal", 24))
sketch10.addConstraint(Sketcher.Constraint("Vertical", 25))
sketch10.addConstraint(Sketcher.Constraint("Horizontal", 26))
sketch10.addConstraint(Sketcher.Constraint("Vertical", 27))
sketch10.addConstraint(Sketcher.Constraint("Horizontal", 28))
sketch10.addConstraint(Sketcher.Constraint("Vertical", 29))
sketch10.addConstraint(Sketcher.Constraint("Horizontal", 30))
sketch10.addConstraint(Sketcher.Constraint("Vertical", 31))
sketch10.addConstraint(Sketcher.Constraint("Horizontal", 32))
sketch10.addConstraint(Sketcher.Constraint("Vertical", 33))
sketch10.addConstraint(Sketcher.Constraint("Horizontal", 34))
sketch10.addConstraint(Sketcher.Constraint("Vertical", 35))
sketch10.addConstraint(Sketcher.Constraint("Horizontal", 36))
sketch10.addConstraint(Sketcher.Constraint("Vertical", 37))
sketch10.addConstraint(Sketcher.Constraint("Horizontal", 38))
sketch10.addConstraint(Sketcher.Constraint("Vertical", 39))
sketch10.addConstraint(Sketcher.Constraint("Horizontal", 40))
sketch10.addConstraint(Sketcher.Constraint("Vertical", 41))
sketch10.addConstraint(Sketcher.Constraint("Horizontal", 42))
sketch10.addConstraint(Sketcher.Constraint("Vertical", 43))
sketch10.addConstraint(Sketcher.Constraint("Horizontal", 44))
sketch10.addConstraint(Sketcher.Constraint("Vertical", 45))
sketch10.addConstraint(Sketcher.Constraint("Horizontal", 2, 2, 5, 2))
sketch10.addConstraint(Sketcher.Constraint("Horizontal", 0, 2, 7, 2))
sketch10.addConstraint(Sketcher.Constraint("Horizontal", 11, 2, 12, 2))
sketch10.addConstraint(Sketcher.Constraint("Horizontal", 6, 2, 15, 2))
sketch10.addConstraint(Sketcher.Constraint("Horizontal", 4, 2, 17, 2))
sketch10.addConstraint(Sketcher.Constraint("Horizontal", 16, 2, 19, 2))
sketch10.addConstraint(Sketcher.Constraint("Horizontal", 14, 2, 21, 2))
sketch10.addConstraint(Sketcher.Constraint("Horizontal", 23, 2, 24, 2))
sketch10.addConstraint(Sketcher.Constraint("Horizontal", 20, 2, 25, 2))
sketch10.addConstraint(Sketcher.Constraint("Horizontal", 10, 2, 29, 2))
sketch10.addConstraint(Sketcher.Constraint("Horizontal", 33, 2, 34, 2))
sketch10.addConstraint(Sketcher.Constraint("Horizontal", 22, 2, 35, 2))
sketch10.addConstraint(Sketcher.Constraint("Horizontal", 26, 2, 39, 2))
sketch10.addConstraint(Sketcher.Constraint("Horizontal", 38, 2, 41, 2))
sketch10.addConstraint(Sketcher.Constraint("Horizontal", 36, 2, 43, 2))
sketch10.addConstraint(Sketcher.Constraint("Vertical", 5, 2, 8, 2))
sketch10.addConstraint(Sketcher.Constraint("Vertical", 3, 2, 10, 2))
sketch10.addConstraint(Sketcher.Constraint("Vertical", 27, 2, 30, 2))
sketch10.addConstraint(Sketcher.Constraint("Vertical", 35, 2, 38, 2))
sketch10.addConstraint(Sketcher.Constraint("Vertical", 41, 2, 44, 2))
sketch10.addConstraint(Sketcher.Constraint("Equal", 2, 4))
sketch10.addConstraint(Sketcher.Constraint("Equal", 4, 6))
sketch10.addConstraint(Sketcher.Constraint("Equal", 10, 16))
sketch10.addConstraint(Sketcher.Constraint("Equal", 16, 20))
sketch10.addConstraint(Sketcher.Constraint("Equal", 14, 22))
sketch10.addConstraint(Sketcher.Constraint("Equal", 20, 26))
sketch10.addConstraint(Sketcher.Constraint("Equal", 32, 34))
sketch10.addConstraint(Sketcher.Constraint("Equal", 22, 36))
sketch10.addConstraint(Sketcher.Constraint("Equal", 38, 42))
sketch10.addConstraint(Sketcher.Constraint("Equal", 30, 3))
sketch10.addConstraint(Sketcher.Constraint("Equal", 5, 9))
sketch10.addConstraint(Sketcher.Constraint("Equal", 44, 13))
sketch10.addConstraint(Sketcher.Constraint("Equal", 24, 15))
sketch10.addConstraint(Sketcher.Constraint("Equal", 29, 31))
sketch10.addConstraint(Sketcher.Constraint("Equal", 31, 33))
sketch10.addConstraint(Sketcher.Constraint("Equal", 35, 39))
sketch10.addConstraint(Sketcher.Constraint("DistanceY", 27, 1, 27, 2, Q("2 mm")))
sketch10.addConstraint(Sketcher.Constraint("DistanceY", 37, 2, 37, 1, Q("4 mm")))
sketch10.addConstraint(Sketcher.Constraint("DistanceX", 0, 1, 0, 2, Q("1.6 mm")))
sketch10.addConstraint(Sketcher.Constraint("DistanceX", 14, 1, 14, 2, Q("0.8 mm")))
sketch10.addConstraint(Sketcher.Constraint("DistanceX", 12, 2, 11, 2, Q("5 mm")))
sketch10.addConstraint(Sketcher.Constraint("DistanceX", 24, 2, 21, 2, Q("1 mm")))
sketch10.addConstraint(Sketcher.Constraint("DistanceX", 34, 2, 31, 2, Q("5 mm")))
sketch10.addConstraint(Sketcher.Constraint("DistanceX", -1, 1, 0, 2, Q("11.1 mm")))
sketch10.addConstraint(Sketcher.Constraint("DistanceY", -1, 1, 0, 2, Q("23.3 mm")))
sketch10.addConstraint(Sketcher.Constraint("DistanceX", 12, 1, 12, 2, Q("3.199771 mm")))
pocket5 = doc.addObject("PartDesign::Pocket", "Pocket004")
body.addObject(pocket5)
pocket5.Profile = sketch10
pocket5.Length = 1
pocket5.Reversed = True

# Sketch on XY plane
sketch11 = doc.addObject("Sketcher::SketchObject", "Sketch010")
body.addObject(sketch11)
sketch11.AttachmentSupport = (doc.XY_Plane, [""])
sketch11.MapMode = "FlatFace"
sketch11.AttachmentOffset = App.Placement(App.Vector(0, 0, 1), App.Rotation())
add_polygon(sketch11, [(3.7, 22.5), (3.7, 20.9), (2.100229, 20.9), (2.100229, 22.5)])  # lines 0-3
add_polygon(sketch11, [(-7.899771, 21.7), (-7.899771, 19.3), (-9.499771, 19.3), (-9.499771, 21.7)])  # lines 4-7
sketch11.addConstraint(Sketcher.Constraint("Vertical", 0))
sketch11.addConstraint(Sketcher.Constraint("Horizontal", 1))
sketch11.addConstraint(Sketcher.Constraint("Vertical", 2))
sketch11.addConstraint(Sketcher.Constraint("Horizontal", 3))
sketch11.addConstraint(Sketcher.Constraint("Vertical", 4))
sketch11.addConstraint(Sketcher.Constraint("Horizontal", 5))
sketch11.addConstraint(Sketcher.Constraint("Vertical", 6))
sketch11.addConstraint(Sketcher.Constraint("Horizontal", 7))
sketch11.addConstraint(Sketcher.Constraint("Equal", 7, 0))
sketch11.addConstraint(Sketcher.Constraint("DistanceX", 5, 2, 5, 1, Q("1.6 mm")))
sketch11.addConstraint(Sketcher.Constraint("DistanceY", 4, 2, 4, 1, Q("2.4 mm")))
sketch11.addConstraint(Sketcher.Constraint("DistanceX", 4, 2, 1, 2, Q("10 mm")))
sketch11.addConstraint(Sketcher.Constraint("DistanceX", -1, 1, 0, 2, Q("3.7 mm")))
sketch11.addConstraint(Sketcher.Constraint("DistanceY", -1, 1, 0, 2, Q("20.9 mm")))
sketch11.addConstraint(Sketcher.Constraint("DistanceY", -1, 1, 4, 2, Q("19.3 mm")))
sketch11.addConstraint(Sketcher.Constraint("DistanceX", 1, 2, 1, 1, Q("1.599771 mm")))
pad6 = doc.addObject("PartDesign::Pad", "Pad005")
body.addObject(pad6)
pad6.Profile = sketch11
pad6.Length = 1
pad6.Reversed = True

doc.recompute()
